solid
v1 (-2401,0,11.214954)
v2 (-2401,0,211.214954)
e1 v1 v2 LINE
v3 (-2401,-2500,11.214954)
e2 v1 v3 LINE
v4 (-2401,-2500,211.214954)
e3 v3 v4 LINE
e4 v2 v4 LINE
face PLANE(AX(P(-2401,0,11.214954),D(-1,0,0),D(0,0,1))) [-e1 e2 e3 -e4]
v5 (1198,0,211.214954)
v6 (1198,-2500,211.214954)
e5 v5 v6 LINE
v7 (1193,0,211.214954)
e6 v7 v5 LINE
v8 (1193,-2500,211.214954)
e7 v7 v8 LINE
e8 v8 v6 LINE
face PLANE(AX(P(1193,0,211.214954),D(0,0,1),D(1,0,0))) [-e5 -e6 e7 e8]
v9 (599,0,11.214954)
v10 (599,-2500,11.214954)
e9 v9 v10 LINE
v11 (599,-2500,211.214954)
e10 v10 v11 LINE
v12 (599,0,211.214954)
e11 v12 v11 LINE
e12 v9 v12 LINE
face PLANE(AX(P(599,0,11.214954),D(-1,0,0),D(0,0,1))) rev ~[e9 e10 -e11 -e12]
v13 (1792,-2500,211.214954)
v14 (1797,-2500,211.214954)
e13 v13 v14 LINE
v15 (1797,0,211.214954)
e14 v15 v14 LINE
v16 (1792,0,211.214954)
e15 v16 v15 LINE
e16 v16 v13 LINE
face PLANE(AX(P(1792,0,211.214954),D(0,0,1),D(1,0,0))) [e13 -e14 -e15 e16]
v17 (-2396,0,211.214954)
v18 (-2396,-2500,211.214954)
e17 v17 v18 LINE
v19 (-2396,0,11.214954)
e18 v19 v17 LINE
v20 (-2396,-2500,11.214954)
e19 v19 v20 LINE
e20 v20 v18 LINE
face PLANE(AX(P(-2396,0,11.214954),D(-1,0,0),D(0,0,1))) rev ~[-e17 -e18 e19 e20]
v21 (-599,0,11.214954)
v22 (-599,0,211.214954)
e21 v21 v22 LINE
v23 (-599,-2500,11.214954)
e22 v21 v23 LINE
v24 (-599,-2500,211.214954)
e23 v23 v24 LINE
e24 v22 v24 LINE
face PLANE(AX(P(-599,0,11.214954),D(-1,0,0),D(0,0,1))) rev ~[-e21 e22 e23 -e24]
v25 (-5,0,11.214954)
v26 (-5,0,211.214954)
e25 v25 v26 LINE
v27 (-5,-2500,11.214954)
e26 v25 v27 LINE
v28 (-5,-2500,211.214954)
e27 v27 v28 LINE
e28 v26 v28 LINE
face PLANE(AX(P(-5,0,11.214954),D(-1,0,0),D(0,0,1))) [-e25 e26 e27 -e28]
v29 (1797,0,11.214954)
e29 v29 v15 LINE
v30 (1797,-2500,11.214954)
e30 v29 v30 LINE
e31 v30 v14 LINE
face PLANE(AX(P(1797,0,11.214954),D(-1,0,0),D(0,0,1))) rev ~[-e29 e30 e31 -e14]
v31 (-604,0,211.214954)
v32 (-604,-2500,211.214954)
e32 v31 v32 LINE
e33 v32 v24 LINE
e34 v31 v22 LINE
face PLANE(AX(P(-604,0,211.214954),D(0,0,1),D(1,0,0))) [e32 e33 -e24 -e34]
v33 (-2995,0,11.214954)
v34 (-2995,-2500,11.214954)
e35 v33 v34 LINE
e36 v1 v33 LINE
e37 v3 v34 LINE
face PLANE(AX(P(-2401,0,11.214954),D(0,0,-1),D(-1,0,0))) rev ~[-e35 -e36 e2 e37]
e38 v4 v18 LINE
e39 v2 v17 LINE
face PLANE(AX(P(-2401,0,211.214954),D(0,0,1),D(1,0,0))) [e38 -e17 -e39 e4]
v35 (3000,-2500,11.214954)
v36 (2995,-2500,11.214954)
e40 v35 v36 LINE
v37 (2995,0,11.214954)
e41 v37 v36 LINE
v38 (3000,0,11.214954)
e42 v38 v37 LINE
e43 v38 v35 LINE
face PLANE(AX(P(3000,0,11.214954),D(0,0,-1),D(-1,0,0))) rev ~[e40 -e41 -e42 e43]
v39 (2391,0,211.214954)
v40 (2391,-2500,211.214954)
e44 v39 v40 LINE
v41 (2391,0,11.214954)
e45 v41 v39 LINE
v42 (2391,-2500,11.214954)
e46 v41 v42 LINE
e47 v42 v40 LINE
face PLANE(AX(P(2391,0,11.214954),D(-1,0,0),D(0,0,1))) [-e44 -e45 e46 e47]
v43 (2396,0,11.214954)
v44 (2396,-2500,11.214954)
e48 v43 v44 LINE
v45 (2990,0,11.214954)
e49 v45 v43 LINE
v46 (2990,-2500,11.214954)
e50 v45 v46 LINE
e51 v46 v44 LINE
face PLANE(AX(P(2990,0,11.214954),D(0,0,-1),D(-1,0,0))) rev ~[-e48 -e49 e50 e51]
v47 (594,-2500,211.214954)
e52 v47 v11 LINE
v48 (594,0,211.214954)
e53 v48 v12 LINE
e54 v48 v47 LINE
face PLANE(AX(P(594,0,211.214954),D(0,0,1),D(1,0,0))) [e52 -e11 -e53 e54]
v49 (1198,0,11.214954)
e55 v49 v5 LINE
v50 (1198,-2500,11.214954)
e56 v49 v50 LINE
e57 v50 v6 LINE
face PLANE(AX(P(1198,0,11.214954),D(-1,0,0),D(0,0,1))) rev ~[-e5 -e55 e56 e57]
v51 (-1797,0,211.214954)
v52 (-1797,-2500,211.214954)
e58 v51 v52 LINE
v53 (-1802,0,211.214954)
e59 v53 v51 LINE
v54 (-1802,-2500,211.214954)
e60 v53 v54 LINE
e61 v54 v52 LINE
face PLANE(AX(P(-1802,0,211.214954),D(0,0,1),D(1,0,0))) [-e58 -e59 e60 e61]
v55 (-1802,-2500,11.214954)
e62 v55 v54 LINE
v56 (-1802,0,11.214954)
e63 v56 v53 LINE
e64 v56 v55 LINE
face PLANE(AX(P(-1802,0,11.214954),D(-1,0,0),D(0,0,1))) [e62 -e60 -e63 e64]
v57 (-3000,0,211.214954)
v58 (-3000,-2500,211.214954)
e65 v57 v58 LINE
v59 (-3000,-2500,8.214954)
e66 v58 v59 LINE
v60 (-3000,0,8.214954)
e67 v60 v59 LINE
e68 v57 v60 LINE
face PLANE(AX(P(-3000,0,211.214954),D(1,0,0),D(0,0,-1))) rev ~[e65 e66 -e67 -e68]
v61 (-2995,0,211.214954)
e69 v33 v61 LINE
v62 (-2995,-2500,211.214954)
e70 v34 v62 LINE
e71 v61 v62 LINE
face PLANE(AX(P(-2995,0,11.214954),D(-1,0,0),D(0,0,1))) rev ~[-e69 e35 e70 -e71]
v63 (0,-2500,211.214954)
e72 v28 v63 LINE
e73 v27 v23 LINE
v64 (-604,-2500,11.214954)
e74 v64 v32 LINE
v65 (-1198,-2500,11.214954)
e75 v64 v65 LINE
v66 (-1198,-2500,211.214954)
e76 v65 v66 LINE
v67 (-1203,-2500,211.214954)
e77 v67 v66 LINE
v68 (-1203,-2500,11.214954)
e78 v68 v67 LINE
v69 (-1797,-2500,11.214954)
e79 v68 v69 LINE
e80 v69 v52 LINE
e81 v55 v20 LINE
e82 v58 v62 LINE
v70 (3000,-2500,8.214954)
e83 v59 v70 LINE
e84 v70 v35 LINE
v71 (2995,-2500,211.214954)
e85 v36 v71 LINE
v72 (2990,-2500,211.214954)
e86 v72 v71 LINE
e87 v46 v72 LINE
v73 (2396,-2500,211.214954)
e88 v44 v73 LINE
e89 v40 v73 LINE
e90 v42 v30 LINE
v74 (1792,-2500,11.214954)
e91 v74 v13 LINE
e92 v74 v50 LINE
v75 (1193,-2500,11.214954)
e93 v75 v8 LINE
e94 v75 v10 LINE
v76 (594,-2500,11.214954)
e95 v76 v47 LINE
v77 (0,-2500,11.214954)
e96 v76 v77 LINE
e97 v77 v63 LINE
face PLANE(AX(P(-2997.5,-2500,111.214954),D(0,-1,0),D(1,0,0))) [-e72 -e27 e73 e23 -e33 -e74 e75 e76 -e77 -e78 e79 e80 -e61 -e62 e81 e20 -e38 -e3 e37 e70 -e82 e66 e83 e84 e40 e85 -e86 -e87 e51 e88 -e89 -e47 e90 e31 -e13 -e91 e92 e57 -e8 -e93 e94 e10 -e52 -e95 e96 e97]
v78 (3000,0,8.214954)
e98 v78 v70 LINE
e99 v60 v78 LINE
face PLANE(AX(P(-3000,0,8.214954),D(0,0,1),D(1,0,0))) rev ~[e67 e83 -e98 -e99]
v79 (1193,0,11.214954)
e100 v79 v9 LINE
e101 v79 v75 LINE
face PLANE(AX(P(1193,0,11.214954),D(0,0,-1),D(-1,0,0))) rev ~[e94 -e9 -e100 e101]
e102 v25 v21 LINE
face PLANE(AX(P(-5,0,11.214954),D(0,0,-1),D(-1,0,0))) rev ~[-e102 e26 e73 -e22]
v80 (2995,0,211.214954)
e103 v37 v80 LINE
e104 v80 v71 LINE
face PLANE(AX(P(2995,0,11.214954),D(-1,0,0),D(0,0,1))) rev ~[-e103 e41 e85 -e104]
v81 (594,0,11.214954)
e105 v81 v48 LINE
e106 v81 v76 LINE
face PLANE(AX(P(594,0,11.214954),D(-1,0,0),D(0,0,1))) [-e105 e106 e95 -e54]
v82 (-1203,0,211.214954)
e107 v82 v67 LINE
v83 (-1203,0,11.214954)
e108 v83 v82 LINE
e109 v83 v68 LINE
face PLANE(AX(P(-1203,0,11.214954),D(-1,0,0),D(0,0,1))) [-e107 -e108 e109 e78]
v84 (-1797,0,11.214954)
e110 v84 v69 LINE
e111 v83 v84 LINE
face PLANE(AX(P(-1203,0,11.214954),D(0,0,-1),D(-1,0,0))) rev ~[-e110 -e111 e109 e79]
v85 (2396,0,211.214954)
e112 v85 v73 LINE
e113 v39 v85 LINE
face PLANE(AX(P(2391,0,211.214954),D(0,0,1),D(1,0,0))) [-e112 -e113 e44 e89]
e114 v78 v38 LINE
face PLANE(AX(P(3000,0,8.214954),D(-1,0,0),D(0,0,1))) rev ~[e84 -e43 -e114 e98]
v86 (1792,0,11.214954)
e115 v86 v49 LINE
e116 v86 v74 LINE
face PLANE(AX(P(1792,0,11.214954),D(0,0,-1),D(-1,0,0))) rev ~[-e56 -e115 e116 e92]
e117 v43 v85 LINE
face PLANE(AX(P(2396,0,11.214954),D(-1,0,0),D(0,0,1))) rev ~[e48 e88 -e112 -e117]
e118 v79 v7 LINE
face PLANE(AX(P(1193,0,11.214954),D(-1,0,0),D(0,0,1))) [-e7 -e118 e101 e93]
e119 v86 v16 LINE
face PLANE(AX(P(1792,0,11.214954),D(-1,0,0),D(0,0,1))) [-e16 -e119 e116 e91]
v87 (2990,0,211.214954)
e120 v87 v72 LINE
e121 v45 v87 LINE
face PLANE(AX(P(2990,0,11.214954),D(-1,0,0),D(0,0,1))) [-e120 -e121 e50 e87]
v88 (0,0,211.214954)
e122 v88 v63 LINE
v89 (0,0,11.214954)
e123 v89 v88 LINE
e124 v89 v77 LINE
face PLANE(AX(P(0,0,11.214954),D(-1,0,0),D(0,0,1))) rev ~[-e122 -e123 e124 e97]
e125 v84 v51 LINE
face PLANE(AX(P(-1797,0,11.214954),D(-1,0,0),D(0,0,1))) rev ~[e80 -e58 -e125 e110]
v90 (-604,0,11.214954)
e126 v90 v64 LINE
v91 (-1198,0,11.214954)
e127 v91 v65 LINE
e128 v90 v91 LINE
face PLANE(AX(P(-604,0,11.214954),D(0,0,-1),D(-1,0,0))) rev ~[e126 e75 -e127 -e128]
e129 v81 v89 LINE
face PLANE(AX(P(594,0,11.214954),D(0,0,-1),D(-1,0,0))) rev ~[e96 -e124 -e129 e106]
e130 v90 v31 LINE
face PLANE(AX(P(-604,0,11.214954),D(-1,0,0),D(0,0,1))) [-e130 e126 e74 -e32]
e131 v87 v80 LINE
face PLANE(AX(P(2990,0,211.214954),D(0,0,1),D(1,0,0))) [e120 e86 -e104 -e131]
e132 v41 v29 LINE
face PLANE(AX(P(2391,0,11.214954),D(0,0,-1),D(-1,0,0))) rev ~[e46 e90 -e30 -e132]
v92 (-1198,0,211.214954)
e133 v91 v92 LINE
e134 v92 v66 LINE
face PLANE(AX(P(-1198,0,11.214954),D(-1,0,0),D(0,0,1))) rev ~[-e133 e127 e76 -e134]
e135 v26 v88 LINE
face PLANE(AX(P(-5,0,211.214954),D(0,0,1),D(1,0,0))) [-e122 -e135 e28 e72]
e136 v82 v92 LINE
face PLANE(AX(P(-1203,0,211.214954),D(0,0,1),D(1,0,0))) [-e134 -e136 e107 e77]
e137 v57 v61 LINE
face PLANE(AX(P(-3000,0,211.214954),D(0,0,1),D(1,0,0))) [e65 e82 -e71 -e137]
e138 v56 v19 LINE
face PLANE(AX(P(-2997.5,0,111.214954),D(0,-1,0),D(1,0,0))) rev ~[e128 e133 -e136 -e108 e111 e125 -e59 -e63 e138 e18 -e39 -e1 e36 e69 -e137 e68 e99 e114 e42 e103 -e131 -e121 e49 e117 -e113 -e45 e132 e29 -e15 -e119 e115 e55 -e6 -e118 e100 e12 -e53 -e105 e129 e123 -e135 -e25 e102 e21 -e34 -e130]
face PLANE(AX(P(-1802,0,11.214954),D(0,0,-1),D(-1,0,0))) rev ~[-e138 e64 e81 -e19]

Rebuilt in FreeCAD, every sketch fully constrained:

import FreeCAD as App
import Part
import Sketcher
Q = App.Units.Quantity


def add_polygon(sketch, points):
    """Adds a closed chain of lines whose ends are joined by coincident constraints."""
    first, n = sketch.GeometryCount, len(points)
    for a, b in zip(points, points[1:] + points[:1]):
        sketch.addGeometry(Part.LineSegment(App.Vector(*a, 0), App.Vector(*b, 0)), False)
    for i in range(n):
        sketch.addConstraint(Sketcher.Constraint("Coincident", first + i, 2, first + (i + 1) % n, 1))

doc = App.newDocument("Part")
body = doc.addObject("PartDesign::Body", "Body")

sketch1 = body.newObject("Sketcher::SketchObject", "Sketch")
sketch1.AttachmentSupport = (doc.getObject("XZ_Plane"), [""])
sketch1.MapMode = "FlatFace"
add_polygon(sketch1, [(-3000, 211.2), (-3000, 8.2), (3000, 8.2), (3000, 11.2), (2995, 11.2), (2995, 211.2), (2990, 211.2), (2990, 11.2), (2396, 11.2), (2396, 211.2), (2391, 211.2), (2391, 11.2), (1797, 11.2), (1797, 211.2), (1792, 211.2), (1792, 11.2), (1198, 11.2), (1198, 211.2), (1193, 211.2), (1193, 11.2), (599, 11.2), (599, 211.2), (594, 211.2), (594, 11.2), (0, 11.2), (0, 211.2), (-5, 211.2), (-5, 11.2), (-599, 11.2), (-599, 211.2), (-604, 211.2), (-604, 11.2), (-1198, 11.2), (-1198, 211.2), (-1203, 211.2), (-1203, 11.2), (-1797, 11.2), (-1797, 211.2), (-1802, 211.2), (-1802, 11.2), (-2396, 11.2), (-2396, 211.2), (-2401, 211.2), (-2401, 11.2), (-2995, 11.2), (-2995, 211.2)])
sketch1.addConstraint(Sketcher.Constraint("Vertical", 0))
sketch1.addConstraint(Sketcher.Constraint("Horizontal", 1))
sketch1.addConstraint(Sketcher.Constraint("Vertical", 2))
sketch1.addConstraint(Sketcher.Constraint("Horizontal", 3))
sketch1.addConstraint(Sketcher.Constraint("Vertical", 4))
sketch1.addConstraint(Sketcher.Constraint("Horizontal", 5))
sketch1.addConstraint(Sketcher.Constraint("Vertical", 6))
sketch1.addConstraint(Sketcher.Constraint("Horizontal", 7))
sketch1.addConstraint(Sketcher.Constraint("Vertical", 8))
sketch1.addConstraint(Sketcher.Constraint("Horizontal", 9))
sketch1.addConstraint(Sketcher.Constraint("Vertical", 10))
sketch1.addConstraint(Sketcher.Constraint("Horizontal", 11))
sketch1.addConstraint(Sketcher.Constraint("Vertical", 12))
sketch1.addConstraint(Sketcher.Constraint("Horizontal", 13))
sketch1.addConstraint(Sketcher.Constraint("Vertical", 14))
sketch1.addConstraint(Sketcher.Constraint("Horizontal", 15))
sketch1.addConstraint(Sketcher.Constraint("Vertical", 16))
sketch1.addConstraint(Sketcher.Constraint("Horizontal", 17))
sketch1.addConstraint(Sketcher.Constraint("Vertical", 18))
sketch1.addConstraint(Sketcher.Constraint("Horizontal", 19))
sketch1.addConstraint(Sketcher.Constraint("Vertical", 20))
sketch1.addConstraint(Sketcher.Constraint("Horizontal", 21))
sketch1.addConstraint(Sketcher.Constraint("Vertical", 22))
sketch1.addConstraint(Sketcher.Constraint("Horizontal", 23))
sketch1.addConstraint(Sketcher.Constraint("Vertical", 24))
sketch1.addConstraint(Sketcher.Constraint("Horizontal", 25))
sketch1.addConstraint(Sketcher.Constraint("Vertical", 26))
sketch1.addConstraint(Sketcher.Constraint("Horizontal", 27))
sketch1.addConstraint(Sketcher.Constraint("Vertical", 28))
sketch1.addConstraint(Sketcher.Constraint("Horizontal", 29))
sketch1.addConstraint(Sketcher.Constraint("Vertical", 30))
sketch1.addConstraint(Sketcher.Constraint("Horizontal", 31))
sketch1.addConstraint(Sketcher.Constraint("Vertical", 32))
sketch1.addConstraint(Sketcher.Constraint("Horizontal", 33))
sketch1.addConstraint(Sketcher.Constraint("Vertical", 34))
sketch1.addConstraint(Sketcher.Constraint("Horizontal", 35))
sketch1.addConstraint(Sketcher.Constraint("Vertical", 36))
sketch1.addConstraint(Sketcher.Constraint("Horizontal", 37))
sketch1.addConstraint(Sketcher.Constraint("Vertical", 38))
sketch1.addConstraint(Sketcher.Constraint("Horizontal", 39))
sketch1.addConstraint(Sketcher.Constraint("Vertical", 40))
sketch1.addConstraint(Sketcher.Constraint("Horizontal", 41))
sketch1.addConstraint(Sketcher.Constraint("Vertical", 42))
sketch1.addConstraint(Sketcher.Constraint("Horizontal", 43))
sketch1.addConstraint(Sketcher.Constraint("Vertical", 44))
sketch1.addConstraint(Sketcher.Constraint("Horizontal", 45))
sketch1.addConstraint(Sketcher.Constraint("Symmetric", 19, 2, 27, 2, -2))
sketch1.addConstraint(Sketcher.Constraint("Symmetric", 15, 2, 31, 2, -2))
sketch1.addConstraint(Sketcher.Constraint("Symmetric", 11, 2, 35, 2, -2))
sketch1.addConstraint(Sketcher.Constraint("Symmetric", 7, 2, 39, 2, -2))
sketch1.addConstraint(Sketcher.Constraint("Symmetric", 3, 2, 43, 2, -2))
sketch1.addConstraint(Sketcher.Constraint("PointOnObject", 23, 2, -2))
sketch1.addConstraint(Sketcher.Constraint("Horizontal", 3, 2, 6, 2))
sketch1.addConstraint(Sketcher.Constraint("Horizontal", 5, 2, 8, 2))
sketch1.addConstraint(Sketcher.Constraint("Horizontal", 7, 2, 10, 2))
sketch1.addConstraint(Sketcher.Constraint("Horizontal", 9, 2, 12, 2))
sketch1.addConstraint(Sketcher.Constraint("Horizontal", 11, 2, 14, 2))
sketch1.addConstraint(Sketcher.Constraint("Horizontal", 13, 2, 16, 2))
sketch1.addConstraint(Sketcher.Constraint("Horizontal", 15, 2, 18, 2))
sketch1.addConstraint(Sketcher.Constraint("Horizontal", 17, 2, 20, 2))
sketch1.addConstraint(Sketcher.Constraint("Horizontal", 19, 2, 22, 2))
sketch1.addConstraint(Sketcher.Constraint("Horizontal", 21, 2, 24, 2))
sketch1.addConstraint(Sketcher.Constraint("Horizontal", 25, 2, 28, 2))
sketch1.addConstraint(Sketcher.Constraint("Horizontal", 29, 2, 32, 2))
sketch1.addConstraint(Sketcher.Constraint("Horizontal", 33, 2, 36, 2))
sketch1.addConstraint(Sketcher.Constraint("Horizontal", 37, 2, 40, 2))
sketch1.addConstraint(Sketcher.Constraint("Horizontal", 41, 2, 44, 2))
sketch1.addConstraint(Sketcher.Constraint("Equal", 3, 5))
sketch1.addConstraint(Sketcher.Constraint("Equal", 5, 9))
sketch1.addConstraint(Sketcher.Constraint("Equal", 7, 11))
sketch1.addConstraint(Sketcher.Constraint("Equal", 9, 13))
sketch1.addConstraint(Sketcher.Constraint("Equal", 11, 15))
sketch1.addConstraint(Sketcher.Constraint("Equal", 13, 17))
sketch1.addConstraint(Sketcher.Constraint("Equal", 15, 19))
sketch1.addConstraint(Sketcher.Constraint("Equal", 17, 21))
sketch1.addConstraint(Sketcher.Constraint("Equal", 19, 23))
sketch1.addConstraint(Sketcher.Constraint("Equal", 21, 25))
sketch1.addConstraint(Sketcher.Constraint("Equal", 25, 29))
sketch1.addConstraint(Sketcher.Constraint("Equal", 29, 33))
sketch1.addConstraint(Sketcher.Constraint("Equal", 33, 37))
sketch1.addConstraint(Sketcher.Constraint("Equal", 37, 41))
sketch1.addConstraint(Sketcher.Constraint("Equal", 41, 45))
sketch1.addConstraint(Sketcher.Constraint("DistanceX", 1, 1, 1, 2, Q("6000 mm")))
sketch1.addConstraint(Sketcher.Constraint("DistanceX", 3, 2, 3, 1, Q("5 mm")))
sketch1.addConstraint(Sketcher.Constraint("DistanceY", 0, 2, 0, 1, Q("203 mm")))
sketch1.addConstraint(Sketcher.Constraint("DistanceY", 2, 1, 2, 2, Q("3 mm")))
sketch1.addConstraint(Sketcher.Constraint("DistanceY", -1, 1, 0, 2, Q("8.214954 mm")))
pad1 = body.newObject("PartDesign::Pad", "Pad")
pad1.Profile = sketch1
pad1.Length = 2500

doc.recompute()
